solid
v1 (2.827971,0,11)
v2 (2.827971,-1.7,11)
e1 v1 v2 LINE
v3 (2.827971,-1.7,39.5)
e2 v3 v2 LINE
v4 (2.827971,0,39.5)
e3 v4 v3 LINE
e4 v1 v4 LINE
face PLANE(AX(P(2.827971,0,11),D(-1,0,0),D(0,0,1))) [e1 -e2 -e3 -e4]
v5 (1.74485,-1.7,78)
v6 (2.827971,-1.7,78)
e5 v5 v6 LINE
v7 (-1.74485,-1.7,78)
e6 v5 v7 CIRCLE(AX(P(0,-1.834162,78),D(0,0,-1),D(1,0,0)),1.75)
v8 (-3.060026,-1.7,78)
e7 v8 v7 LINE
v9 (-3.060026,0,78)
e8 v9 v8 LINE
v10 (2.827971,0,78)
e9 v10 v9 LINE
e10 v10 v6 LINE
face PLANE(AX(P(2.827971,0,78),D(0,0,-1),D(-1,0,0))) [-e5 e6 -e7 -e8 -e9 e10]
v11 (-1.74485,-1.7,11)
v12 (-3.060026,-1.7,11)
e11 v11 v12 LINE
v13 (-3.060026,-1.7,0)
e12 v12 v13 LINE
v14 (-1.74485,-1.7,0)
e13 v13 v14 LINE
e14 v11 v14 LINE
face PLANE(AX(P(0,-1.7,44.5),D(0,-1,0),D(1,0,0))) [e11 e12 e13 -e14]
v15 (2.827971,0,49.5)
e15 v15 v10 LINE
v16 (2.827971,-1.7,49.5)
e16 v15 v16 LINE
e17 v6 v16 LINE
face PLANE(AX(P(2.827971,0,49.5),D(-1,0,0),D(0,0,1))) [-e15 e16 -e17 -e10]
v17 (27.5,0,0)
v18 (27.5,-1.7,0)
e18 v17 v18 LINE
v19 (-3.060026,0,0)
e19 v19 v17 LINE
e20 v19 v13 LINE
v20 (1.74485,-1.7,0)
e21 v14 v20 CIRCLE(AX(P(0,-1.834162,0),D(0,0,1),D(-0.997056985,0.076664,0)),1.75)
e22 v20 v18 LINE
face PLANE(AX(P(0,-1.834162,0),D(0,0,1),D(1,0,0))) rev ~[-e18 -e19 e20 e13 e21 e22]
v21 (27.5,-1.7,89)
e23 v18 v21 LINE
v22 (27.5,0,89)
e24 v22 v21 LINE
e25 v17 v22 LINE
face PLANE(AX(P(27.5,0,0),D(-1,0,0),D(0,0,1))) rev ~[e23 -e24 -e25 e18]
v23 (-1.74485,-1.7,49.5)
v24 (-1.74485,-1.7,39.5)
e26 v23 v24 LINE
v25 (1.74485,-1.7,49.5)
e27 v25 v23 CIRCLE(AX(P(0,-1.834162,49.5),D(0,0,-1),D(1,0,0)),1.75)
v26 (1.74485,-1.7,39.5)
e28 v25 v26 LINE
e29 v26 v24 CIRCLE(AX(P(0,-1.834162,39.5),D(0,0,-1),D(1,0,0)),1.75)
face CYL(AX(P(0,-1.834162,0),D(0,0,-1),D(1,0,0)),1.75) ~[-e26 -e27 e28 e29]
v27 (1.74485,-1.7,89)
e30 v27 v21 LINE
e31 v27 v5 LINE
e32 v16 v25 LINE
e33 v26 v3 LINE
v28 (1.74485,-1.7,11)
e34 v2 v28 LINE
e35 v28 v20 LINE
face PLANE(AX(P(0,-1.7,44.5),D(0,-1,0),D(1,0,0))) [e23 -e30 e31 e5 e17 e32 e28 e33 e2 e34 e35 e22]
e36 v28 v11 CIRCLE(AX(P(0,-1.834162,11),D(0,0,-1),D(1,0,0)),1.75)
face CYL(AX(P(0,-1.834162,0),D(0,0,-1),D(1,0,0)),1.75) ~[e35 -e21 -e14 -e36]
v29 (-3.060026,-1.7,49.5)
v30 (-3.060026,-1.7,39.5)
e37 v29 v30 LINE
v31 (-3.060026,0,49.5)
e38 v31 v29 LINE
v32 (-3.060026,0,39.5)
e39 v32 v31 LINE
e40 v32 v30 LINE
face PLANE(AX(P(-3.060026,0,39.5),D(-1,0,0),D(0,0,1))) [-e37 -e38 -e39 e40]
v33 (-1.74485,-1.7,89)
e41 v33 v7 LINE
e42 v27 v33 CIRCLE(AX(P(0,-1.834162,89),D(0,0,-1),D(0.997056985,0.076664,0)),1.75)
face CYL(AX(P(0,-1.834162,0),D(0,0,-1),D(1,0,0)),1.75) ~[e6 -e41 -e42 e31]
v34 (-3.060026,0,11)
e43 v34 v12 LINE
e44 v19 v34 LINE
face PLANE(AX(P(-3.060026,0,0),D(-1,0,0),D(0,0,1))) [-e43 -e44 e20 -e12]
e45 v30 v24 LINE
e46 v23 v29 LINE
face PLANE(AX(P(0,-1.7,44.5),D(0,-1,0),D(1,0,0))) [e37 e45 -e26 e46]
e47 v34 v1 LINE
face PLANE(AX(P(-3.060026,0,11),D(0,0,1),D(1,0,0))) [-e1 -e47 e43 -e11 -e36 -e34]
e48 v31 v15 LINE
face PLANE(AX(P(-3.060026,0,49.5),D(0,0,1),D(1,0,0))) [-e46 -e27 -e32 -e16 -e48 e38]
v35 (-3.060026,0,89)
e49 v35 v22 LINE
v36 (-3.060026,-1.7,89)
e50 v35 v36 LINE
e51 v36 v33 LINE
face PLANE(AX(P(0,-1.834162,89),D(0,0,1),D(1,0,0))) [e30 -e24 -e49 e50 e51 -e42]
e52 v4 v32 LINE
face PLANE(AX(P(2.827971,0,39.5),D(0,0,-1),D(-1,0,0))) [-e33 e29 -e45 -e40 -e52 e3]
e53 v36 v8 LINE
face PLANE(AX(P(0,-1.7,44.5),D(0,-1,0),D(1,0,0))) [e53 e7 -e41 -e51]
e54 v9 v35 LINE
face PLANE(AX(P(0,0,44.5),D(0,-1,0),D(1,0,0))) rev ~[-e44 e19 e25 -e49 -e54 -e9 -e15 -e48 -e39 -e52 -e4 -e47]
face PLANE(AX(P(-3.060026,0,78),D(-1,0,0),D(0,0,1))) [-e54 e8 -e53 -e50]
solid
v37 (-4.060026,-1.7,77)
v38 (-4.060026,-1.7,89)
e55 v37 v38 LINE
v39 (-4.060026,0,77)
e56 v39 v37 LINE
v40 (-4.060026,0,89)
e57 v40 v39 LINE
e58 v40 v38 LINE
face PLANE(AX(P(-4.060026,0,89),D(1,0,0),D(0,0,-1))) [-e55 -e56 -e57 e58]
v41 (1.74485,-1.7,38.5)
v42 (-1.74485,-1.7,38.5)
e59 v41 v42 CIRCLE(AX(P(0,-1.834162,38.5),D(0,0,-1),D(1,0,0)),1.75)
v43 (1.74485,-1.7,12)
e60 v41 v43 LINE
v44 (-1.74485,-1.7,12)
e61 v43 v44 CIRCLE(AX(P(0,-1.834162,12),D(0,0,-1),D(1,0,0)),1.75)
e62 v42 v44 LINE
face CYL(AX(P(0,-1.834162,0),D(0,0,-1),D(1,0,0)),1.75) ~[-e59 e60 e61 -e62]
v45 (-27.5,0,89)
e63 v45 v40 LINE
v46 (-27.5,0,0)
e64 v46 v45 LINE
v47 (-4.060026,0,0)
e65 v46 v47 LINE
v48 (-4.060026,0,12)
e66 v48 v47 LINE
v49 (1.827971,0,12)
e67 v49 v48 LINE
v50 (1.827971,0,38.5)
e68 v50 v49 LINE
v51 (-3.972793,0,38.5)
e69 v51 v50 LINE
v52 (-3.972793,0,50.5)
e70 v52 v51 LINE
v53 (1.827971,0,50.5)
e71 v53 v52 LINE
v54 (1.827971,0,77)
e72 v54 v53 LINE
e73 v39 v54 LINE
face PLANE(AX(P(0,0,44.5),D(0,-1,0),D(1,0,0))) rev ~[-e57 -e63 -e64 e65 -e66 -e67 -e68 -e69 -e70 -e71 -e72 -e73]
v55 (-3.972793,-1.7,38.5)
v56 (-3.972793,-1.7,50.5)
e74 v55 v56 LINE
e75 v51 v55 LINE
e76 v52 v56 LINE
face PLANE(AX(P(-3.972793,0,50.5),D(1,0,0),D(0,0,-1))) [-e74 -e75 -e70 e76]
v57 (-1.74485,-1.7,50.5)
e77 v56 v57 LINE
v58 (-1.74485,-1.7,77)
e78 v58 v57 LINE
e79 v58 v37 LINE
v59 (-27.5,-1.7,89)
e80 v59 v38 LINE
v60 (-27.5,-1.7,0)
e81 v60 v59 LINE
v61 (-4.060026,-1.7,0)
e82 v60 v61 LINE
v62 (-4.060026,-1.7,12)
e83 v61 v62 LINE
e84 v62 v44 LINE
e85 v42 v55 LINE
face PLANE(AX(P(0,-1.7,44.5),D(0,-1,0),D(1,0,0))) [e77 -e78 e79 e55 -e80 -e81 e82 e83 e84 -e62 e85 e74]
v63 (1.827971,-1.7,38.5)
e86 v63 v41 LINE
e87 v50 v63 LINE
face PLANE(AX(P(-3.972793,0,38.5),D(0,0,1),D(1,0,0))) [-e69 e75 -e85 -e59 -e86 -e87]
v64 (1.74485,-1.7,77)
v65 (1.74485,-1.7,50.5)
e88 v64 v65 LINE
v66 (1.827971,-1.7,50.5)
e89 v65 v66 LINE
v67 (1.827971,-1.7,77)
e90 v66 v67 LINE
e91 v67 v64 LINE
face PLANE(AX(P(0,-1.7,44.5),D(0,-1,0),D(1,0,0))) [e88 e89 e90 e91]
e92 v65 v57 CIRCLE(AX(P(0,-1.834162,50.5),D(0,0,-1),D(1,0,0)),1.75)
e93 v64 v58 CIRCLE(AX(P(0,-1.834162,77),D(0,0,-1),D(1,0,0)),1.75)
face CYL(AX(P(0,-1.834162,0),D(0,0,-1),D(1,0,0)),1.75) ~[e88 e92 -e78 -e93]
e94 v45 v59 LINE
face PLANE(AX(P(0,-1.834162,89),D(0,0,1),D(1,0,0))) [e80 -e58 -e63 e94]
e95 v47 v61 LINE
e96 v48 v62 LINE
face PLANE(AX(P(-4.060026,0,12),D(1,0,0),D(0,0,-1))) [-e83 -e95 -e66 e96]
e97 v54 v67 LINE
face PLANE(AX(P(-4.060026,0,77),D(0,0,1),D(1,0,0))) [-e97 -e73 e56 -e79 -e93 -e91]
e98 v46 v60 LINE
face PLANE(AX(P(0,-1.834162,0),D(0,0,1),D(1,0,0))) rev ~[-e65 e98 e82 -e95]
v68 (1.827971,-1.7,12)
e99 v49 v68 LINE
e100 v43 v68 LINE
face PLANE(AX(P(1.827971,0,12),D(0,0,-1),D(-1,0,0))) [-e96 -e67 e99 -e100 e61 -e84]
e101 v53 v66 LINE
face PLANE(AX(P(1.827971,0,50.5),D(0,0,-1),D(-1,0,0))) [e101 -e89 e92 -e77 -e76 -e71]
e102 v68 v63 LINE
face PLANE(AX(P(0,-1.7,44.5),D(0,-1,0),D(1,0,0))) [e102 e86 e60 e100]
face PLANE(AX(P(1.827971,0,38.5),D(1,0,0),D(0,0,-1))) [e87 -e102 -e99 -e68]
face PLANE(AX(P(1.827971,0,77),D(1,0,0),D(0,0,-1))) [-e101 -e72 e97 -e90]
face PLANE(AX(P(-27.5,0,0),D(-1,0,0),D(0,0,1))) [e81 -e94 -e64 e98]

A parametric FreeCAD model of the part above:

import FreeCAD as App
import Part
import Sketcher
from FreeCAD import Vector

doc = App.newDocument("Part")
body = doc.addObject("PartDesign::Body", "Body")
body.AllowCompound = True

# Sketch on XZ plane
sketch1 = body.newObject("Sketcher::SketchObject", "Sketch")
sketch1.AttachmentSupport = (doc.getObject("XZ_Plane"), [""])
sketch1.MapMode = "FlatFace"
sketch1.addGeometry(Part.LineSegment(Vector(-28, 89, 0), Vector(-28, 0, 0)), False)
sketch1.addGeometry(Part.LineSegment(Vector(-28, 0, 0), Vector(28, 0, 0)), False)
sketch1.addGeometry(Part.LineSegment(Vector(28, 0, 0), Vector(28, 89, 0)), False)
sketch1.addGeometry(Part.LineSegment(Vector(28, 89, 0), Vector(-28, 89, 0)), False)
sketch1.addConstraint(Sketcher.Constraint("Coincident", 0, 2, 1, 1))
sketch1.addConstraint(Sketcher.Constraint("Coincident", 1, 2, 2, 1))
sketch1.addConstraint(Sketcher.Constraint("Coincident", 2, 2, 3, 1))
sketch1.addConstraint(Sketcher.Constraint("Coincident", 3, 2, 0, 1))
sketch1.addConstraint(Sketcher.Constraint("Vertical", 0))
sketch1.addConstraint(Sketcher.Constraint("Horizontal", 1))
sketch1.addConstraint(Sketcher.Constraint("Vertical", 2))
sketch1.addConstraint(Sketcher.Constraint("Horizontal", 3))
sketch1.addConstraint(Sketcher.Constraint("Symmetric", 0, 2, 1, 2, -1, 1))
sketch1.addConstraint(Sketcher.Constraint("DistanceX", 1, 1, 1, 2, 55.0))
sketch1.addConstraint(Sketcher.Constraint("DistanceY", 0, 2, 0, 1, 89.0))
pad1 = body.newObject("PartDesign::Pad", "Pad")
pad1.Profile = sketch1
pad1.Length = 1.7

# Sketch on XY plane
sketch2 = body.newObject("Sketcher::SketchObject", "Sketch001")
sketch2.AttachmentSupport = (doc.getObject("XY_Plane"), [""])
sketch2.MapMode = "FlatFace"
sketch2.addGeometry(Part.Circle(Vector(0, -1.8, 0), Vector(0, 0, 1), 1.8), False)
sketch2.addConstraint(Sketcher.Constraint("PointOnObject", 0, 3, -2))
sketch2.addConstraint(Sketcher.Constraint("Diameter", 0, 3.5))
sketch2.addConstraint(Sketcher.Constraint("DistanceY", 0, 3, -1, 1, 1.834162))
pad2 = body.newObject("PartDesign::Pad", "Pad001")
pad2.Profile = sketch2
pad2.Length = 89

# Sketch on XZ plane
sketch3 = body.newObject("Sketcher::SketchObject", "Sketch002")
sketch3.AttachmentSupport = (doc.getObject("XZ_Plane"), [""])
sketch3.MapMode = "FlatFace"
sketch3.addGeometry(Part.LineSegment(Vector(-3.1, 89, 0), Vector(-4.1, 89, 0)), False)
sketch3.addGeometry(Part.LineSegment(Vector(-4.1, 89, 0), Vector(-4.1, 77, 0)), False)
sketch3.addGeometry(Part.LineSegment(Vector(-4.1, 77, 0), Vector(1.8, 77, 0)), False)
sketch3.addGeometry(Part.LineSegment(Vector(1.8, 77, 0), Vector(1.8, 50.5, 0)), False)
sketch3.addGeometry(Part.LineSegment(Vector(1.8, 50.5, 0), Vector(-4, 50.5, 0)), False)
sketch3.addGeometry(Part.LineSegment(Vector(-4, 50.5, 0), Vector(-4, 38.5, 0)), False)
sketch3.addGeometry(Part.LineSegment(Vector(-4, 38.5, 0), Vector(1.8, 38.5, 0)), False)
sketch3.addGeometry(Part.LineSegment(Vector(1.8, 38.5, 0), Vector(1.8, 12, 0)), False)
sketch3.addGeometry(Part.LineSegment(Vector(1.8, 12, 0), Vector(-4.1, 12, 0)), False)
sketch3.addGeometry(Part.LineSegment(Vector(-4.1, 12, 0), Vector(-4.1, 0, 0)), False)
sketch3.addGeometry(Part.LineSegment(Vector(-4.1, 0, 0), Vector(-3.1, 0, 0)), False)
sketch3.addGeometry(Part.LineSegment(Vector(-3.1, 0, 0), Vector(-3.1, 11, 0)), False)
sketch3.addGeometry(Part.LineSegment(Vector(-3.1, 11, 0), Vector(2.8, 11, 0)), False)
sketch3.addGeometry(Part.LineSegment(Vector(2.8, 11, 0), Vector(2.8, 39.5, 0)), False)
sketch3.addGeometry(Part.LineSegment(Vector(2.8, 39.5, 0), Vector(-3.1, 39.5, 0)), False)
sketch3.addGeometry(Part.LineSegment(Vector(-3.1, 39.5, 0), Vector(-3.1, 49.5, 0)), False)
sketch3.addGeometry(Part.LineSegment(Vector(-3.1, 49.5, 0), Vector(2.8, 49.5, 0)), False)
sketch3.addGeometry(Part.LineSegment(Vector(2.8, 49.5, 0), Vector(2.8, 78, 0)), False)
sketch3.addGeometry(Part.LineSegment(Vector(2.8, 78, 0), Vector(-3.1, 78, 0)), False)
sketch3.addGeometry(Part.LineSegment(Vector(-3.1, 78, 0), Vector(-3.1, 89, 0)), False)
sketch3.addConstraint(Sketcher.Constraint("Coincident", 0, 2, 1, 1))
sketch3.addConstraint(Sketcher.Constraint("Coincident", 1, 2, 2, 1))
sketch3.addConstraint(Sketcher.Constraint("Coincident", 2, 2, 3, 1))
sketch3.addConstraint(Sketcher.Constraint("Coincident", 3, 2, 4, 1))
sketch3.addConstraint(Sketcher.Constraint("Coincident", 4, 2, 5, 1))
sketch3.addConstraint(Sketcher.Constraint("Coincident", 5, 2, 6, 1))
sketch3.addConstraint(Sketcher.Constraint("Coincident", 6, 2, 7, 1))
sketch3.addConstraint(Sketcher.Constraint("Coincident", 7, 2, 8, 1))
sketch3.addConstraint(Sketcher.Constraint("Coincident", 8, 2, 9, 1))
sketch3.addConstraint(Sketcher.Constraint("Coincident", 9, 2, 10, 1))
sketch3.addConstraint(Sketcher.Constraint("Coincident", 10, 2, 11, 1))
sketch3.addConstraint(Sketcher.Constraint("Coincident", 11, 2, 12, 1))
sketch3.addConstraint(Sketcher.Constraint("Coincident", 12, 2, 13, 1))
sketch3.addConstraint(Sketcher.Constraint("Coincident", 13, 2, 14, 1))
sketch3.addConstraint(Sketcher.Constraint("Coincident", 14, 2, 15, 1))
sketch3.addConstraint(Sketcher.Constraint("Coincident", 15, 2, 16, 1))
sketch3.addConstraint(Sketcher.Constraint("Coincident", 16, 2, 17, 1))
sketch3.addConstraint(Sketcher.Constraint("Coincident", 17, 2, 18, 1))
sketch3.addConstraint(Sketcher.Constraint("Coincident", 18, 2, 19, 1))
sketch3.addConstraint(Sketcher.Constraint("Coincident", 19, 2, 0, 1))
sketch3.addConstraint(Sketcher.Constraint("Horizontal", 0))
sketch3.addConstraint(Sketcher.Constraint("Vertical", 1))
sketch3.addConstraint(Sketcher.Constraint("Horizontal", 2))
sketch3.addConstraint(Sketcher.Constraint("Vertical", 3))
sketch3.addConstraint(Sketcher.Constraint("Horizontal", 4))
sketch3.addConstraint(Sketcher.Constraint("Vertical", 5))
sketch3.addConstraint(Sketcher.Constraint("Horizontal", 6))
sketch3.addConstraint(Sketcher.Constraint("Vertical", 7))
sketch3.addConstraint(Sketcher.Constraint("Horizontal", 8))
sketch3.addConstraint(Sketcher.Constraint("Vertical", 9))
sketch3.addConstraint(Sketcher.Constraint("Horizontal", 10))
sketch3.addConstraint(Sketcher.Constraint("Vertical", 11))
sketch3.addConstraint(Sketcher.Constraint("Horizontal", 12))
sketch3.addConstraint(Sketcher.Constraint("Vertical", 13))
sketch3.addConstraint(Sketcher.Constraint("Horizontal", 14))
sketch3.addConstraint(Sketcher.Constraint("Vertical", 15))
sketch3.addConstraint(Sketcher.Constraint("Horizontal", 16))
sketch3.addConstraint(Sketcher.Constraint("Vertical", 17))
sketch3.addConstraint(Sketcher.Constraint("Horizontal", 18))
sketch3.addConstraint(Sketcher.Constraint("Vertical", 19))
sketch3.addConstraint(Sketcher.Constraint("PointOnObject", 9, 2, -1))
sketch3.addConstraint(Sketcher.Constraint("Vertical", 3, 2, 6, 2))
sketch3.addConstraint(Sketcher.Constraint("Vertical", 1, 2, 8, 2))
sketch3.addConstraint(Sketcher.Constraint("Vertical", 11, 2, 14, 2))
sketch3.addConstraint(Sketcher.Constraint("Vertical", 13, 2, 16, 2))
sketch3.addConstraint(Sketcher.Constraint("Vertical", 15, 2, 18, 2))
sketch3.addConstraint(Sketcher.Constraint("Equal", 8, 12))
sketch3.addConstraint(Sketcher.Constraint("Equal", 1, 5))
sketch3.addConstraint(Sketcher.Constraint("Equal", 3, 7))
sketch3.addConstraint(Sketcher.Constraint("Equal", 5, 9))
sketch3.addConstraint(Sketcher.Constraint("Equal", 13, 17))
sketch3.addConstraint(Sketcher.Constraint("Equal", 11, 19))
sketch3.addConstraint(Sketcher.Constraint("DistanceX", 0, 2, 0, 1, 1.0))
sketch3.addConstraint(Sketcher.Constraint("DistanceY", 1, 2, 1, 1, 12.0))
sketch3.addConstraint(Sketcher.Constraint("DistanceY", 11, 1, 11, 2, 11.0))
sketch3.addConstraint(Sketcher.Constraint("DistanceY", 15, 1, 15, 2, 10.0))
sketch3.addConstraint(Sketcher.Constraint("DistanceY", 3, 2, 3, 1, 26.5))
sketch3.addConstraint(Sketcher.Constraint("DistanceX", 2, 1, 2, 2, 5.887997))
sketch3.addConstraint(Sketcher.Constraint("DistanceX", 4, 2, 4, 1, 5.800764))
sketch3.addConstraint(Sketcher.Constraint("DistanceX", -1, 1, 2, 2, 1.827971))
pocket1 = body.newObject("PartDesign::Pocket", "Pocket")
pocket1.Profile = sketch3
pocket1.Type = "ThroughAll"
pocket1.Reversed = True

doc.recompute()
